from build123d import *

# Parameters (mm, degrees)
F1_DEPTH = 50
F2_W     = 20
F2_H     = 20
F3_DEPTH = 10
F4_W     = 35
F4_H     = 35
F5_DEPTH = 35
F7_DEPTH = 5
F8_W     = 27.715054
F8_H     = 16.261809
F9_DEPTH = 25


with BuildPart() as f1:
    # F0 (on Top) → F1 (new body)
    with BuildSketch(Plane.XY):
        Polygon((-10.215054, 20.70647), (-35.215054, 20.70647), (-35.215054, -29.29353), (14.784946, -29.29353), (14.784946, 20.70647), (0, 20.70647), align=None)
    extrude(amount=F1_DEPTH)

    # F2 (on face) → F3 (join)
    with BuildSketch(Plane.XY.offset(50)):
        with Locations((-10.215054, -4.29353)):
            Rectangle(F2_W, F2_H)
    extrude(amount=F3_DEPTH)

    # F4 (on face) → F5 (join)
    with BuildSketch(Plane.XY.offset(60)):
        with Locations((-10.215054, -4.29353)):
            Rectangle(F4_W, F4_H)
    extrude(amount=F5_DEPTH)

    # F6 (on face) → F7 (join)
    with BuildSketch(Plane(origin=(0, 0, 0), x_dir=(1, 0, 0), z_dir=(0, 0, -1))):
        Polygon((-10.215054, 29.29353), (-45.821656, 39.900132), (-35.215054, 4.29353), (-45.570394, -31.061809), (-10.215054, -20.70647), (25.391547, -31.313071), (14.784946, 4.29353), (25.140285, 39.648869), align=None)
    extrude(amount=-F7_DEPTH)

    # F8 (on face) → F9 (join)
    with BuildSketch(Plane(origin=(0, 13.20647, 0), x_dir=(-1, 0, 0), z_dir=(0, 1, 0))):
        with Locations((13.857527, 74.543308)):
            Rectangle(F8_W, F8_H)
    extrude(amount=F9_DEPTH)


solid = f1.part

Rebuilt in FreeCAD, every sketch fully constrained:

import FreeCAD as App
import Part
import Sketcher
Q = App.Units.Quantity

doc = App.newDocument("Part")
body = doc.addObject("PartDesign::Body", "Body")

# Sketch on XY plane
sketch1 = body.newObject("Sketcher::SketchObject", "Sketch")
sketch1.AttachmentSupport = (doc.getObject("XY_Plane"), [""])
sketch1.MapMode = "FlatFace"
sketch1.addGeometry([
    Part.LineSegment(App.Vector(-35, 21, 0), App.Vector(-35, -29, 0)),
    Part.LineSegment(App.Vector(-35, -29, 0), App.Vector(15, -29, 0)),
    Part.LineSegment(App.Vector(15, -29, 0), App.Vector(15, 21, 0)),
    Part.LineSegment(App.Vector(15, 21, 0), App.Vector(-35, 21, 0)),
], False)
sketch1.addConstraint([
    Sketcher.Constraint("Coincident", 0, 2, 1, 1),
    Sketcher.Constraint("Coincident", 1, 2, 2, 1),
    Sketcher.Constraint("Coincident", 2, 2, 3, 1),
    Sketcher.Constraint("Coincident", 3, 2, 0, 1),
    Sketcher.Constraint("Vertical", 0),
    Sketcher.Constraint("Horizontal", 1),
    Sketcher.Constraint("Vertical", 2),
    Sketcher.Constraint("Horizontal", 3),
    Sketcher.Constraint("Equal", 3, 0),
    Sketcher.Constraint("DistanceX", 1, 1, 1, 2, Q("50 mm")),
    Sketcher.Constraint("DistanceY", 0, 2, -1, 1, Q("29.29353 mm")),
    Sketcher.Constraint("DistanceX", 0, 2, -1, 1, Q("35.215054 mm")),
])
pad1 = body.newObject("PartDesign::Pad", "Pad")
pad1.Profile = sketch1
pad1.Length = 50

# Sketch on XY plane
sketch2 = body.newObject("Sketcher::SketchObject", "Sketch001")
sketch2.AttachmentSupport = (doc.getObject("XY_Plane"), [""])
sketch2.MapMode = "FlatFace"
sketch2.AttachmentOffset = App.Placement(App.Vector(0, 0, 50), App.Rotation())
sketch2.addGeometry([
    Part.LineSegment(App.Vector(-20, 6, 0), App.Vector(-20, -14, 0)),
    Part.LineSegment(App.Vector(-20, -14, 0), App.Vector(0, -14, 0)),
    Part.LineSegment(App.Vector(0, -14, 0), App.Vector(0, 6, 0)),
    Part.LineSegment(App.Vector(0, 6, 0), App.Vector(-20, 6, 0)),
], False)
sketch2.addConstraint([
    Sketcher.Constraint("Coincident", 0, 2, 1, 1),
    Sketcher.Constraint("Coincident", 1, 2, 2, 1),
    Sketcher.Constraint("Coincident", 2, 2, 3, 1),
    Sketcher.Constraint("Coincident", 3, 2, 0, 1),
    Sketcher.Constraint("Vertical", 0),
    Sketcher.Constraint("Horizontal", 1),
    Sketcher.Constraint("Vertical", 2),
    Sketcher.Constraint("Horizontal", 3),
    Sketcher.Constraint("Equal", 3, 0),
    Sketcher.Constraint("DistanceX", 1, 1, 1, 2, Q("20 mm")),
    Sketcher.Constraint("DistanceY", 0, 2, -1, 1, Q("14.29353 mm")),
    Sketcher.Constraint("DistanceX", 0, 2, -1, 1, Q("20.215054 mm")),
])
pad2 = body.newObject("PartDesign::Pad", "Pad001")
pad2.Profile = sketch2
pad2.Length = 10

# Sketch on XY plane
sketch3 = body.newObject("Sketcher::SketchObject", "Sketch002")
sketch3.AttachmentSupport = (doc.getObject("XY_Plane"), [""])
sketch3.MapMode = "FlatFace"
sketch3.AttachmentOffset = App.Placement(App.Vector(0, 0, 60), App.Rotation())
sketch3.addGeometry([
    Part.LineSegment(App.Vector(-28, 13, 0), App.Vector(-28, -22, 0)),
    Part.LineSegment(App.Vector(-28, -22, 0), App.Vector(7, -22, 0)),
    Part.LineSegment(App.Vector(7, -22, 0), App.Vector(7, 13, 0)),
    Part.LineSegment(App.Vector(7, 13, 0), App.Vector(-28, 13, 0)),
], False)
sketch3.addConstraint([
    Sketcher.Constraint("Coincident", 0, 2, 1, 1),
    Sketcher.Constraint("Coincident", 1, 2, 2, 1),
    Sketcher.Constraint("Coincident", 2, 2, 3, 1),
    Sketcher.Constraint("Coincident", 3, 2, 0, 1),
    Sketcher.Constraint("Vertical", 0),
    Sketcher.Constraint("Horizontal", 1),
    Sketcher.Constraint("Vertical", 2),
    Sketcher.Constraint("Horizontal", 3),
    Sketcher.Constraint("Equal", 3, 0),
    Sketcher.Constraint("DistanceX", 1, 1, 1, 2, Q("35 mm")),
    Sketcher.Constraint("DistanceY", 0, 2, -1, 1, Q("21.79353 mm")),
    Sketcher.Constraint("DistanceX", 0, 2, -1, 1, Q("27.715054 mm")),
])
pad3 = body.newObject("PartDesign::Pad", "Pad002")
pad3.Profile = sketch3
pad3.Length = 35

# Sketch on XY plane
sketch4 = body.newObject("Sketcher::SketchObject", "Sketch003")
sketch4.AttachmentSupport = (doc.getObject("XY_Plane"), [""])
sketch4.MapMode = "FlatFace"
sketch4.addGeometry([
    Part.LineSegment(App.Vector(-10, -29, 0), App.Vector(-46, -40, 0)),  # 0
    Part.LineSegment(App.Vector(-46, -40, 0), App.Vector(-35, -4, 0)),  # 1
    Part.LineSegment(App.Vector(-35, -4, 0), App.Vector(-46, 31, 0)),  # 2
    Part.LineSegment(App.Vector(-46, 31, 0), App.Vector(-10, 21, 0)),  # 3
    Part.LineSegment(App.Vector(-10, 21, 0), App.Vector(25, 31, 0)),  # 4
    Part.LineSegment(App.Vector(25, 31, 0), App.Vector(15, -4, 0)),  # 5
    Part.LineSegment(App.Vector(15, -4, 0), App.Vector(25, -40, 0)),  # 6
    Part.LineSegment(App.Vector(25, -40, 0), App.Vector(-10, -29, 0)),  # 7
], False)
sketch4.addConstraint([
    Sketcher.Constraint("Coincident", 0, 2, 1, 1),
    Sketcher.Constraint("Coincident", 1, 2, 2, 1),
    Sketcher.Constraint("Coincident", 2, 2, 3, 1),
    Sketcher.Constraint("Coincident", 3, 2, 4, 1),
    Sketcher.Constraint("Coincident", 4, 2, 5, 1),
    Sketcher.Constraint("Coincident", 5, 2, 6, 1),
    Sketcher.Constraint("Coincident", 6, 2, 7, 1),
    Sketcher.Constraint("Coincident", 7, 2, 0, 1),
    Sketcher.Constraint("Parallel", 0, 4),
    Sketcher.Constraint("Parallel", 1, 5),
    Sketcher.Constraint("Parallel", 2, 6),
    Sketcher.Constraint("Parallel", 3, 7),
    Sketcher.Constraint("Horizontal", 1, 2, 5, 2),
    Sketcher.Constraint("Vertical", 3, 2, 7, 2),
    Sketcher.Constraint("Equal", 0, 1),
    Sketcher.Constraint("Equal", 2, 3),
    Sketcher.Constraint("Equal", 1, 4),
    Sketcher.Constraint("Equal", 4, 5),
    Sketcher.Constraint("DistanceX", 1, 2, 3, 2, Q("25 mm")),
    Sketcher.Constraint("DistanceY", 1, 2, 3, 2, Q("25 mm")),
    Sketcher.Constraint("DistanceX", 0, 2, 1, 2, Q("10.606602 mm")),
    Sketcher.Constraint("DistanceY", 1, 2, -1, 1, Q("4.29353 mm")),
    Sketcher.Constraint("DistanceY", -1, 1, 2, 2, Q("31.061809 mm")),
    Sketcher.Constraint("DistanceX", 0, 2, -1, 1, Q("45.821656 mm")),
])
pad4 = body.newObject("PartDesign::Pad", "Pad003")
pad4.Profile = sketch4
pad4.Length = 5

# Sketch on XZ plane
sketch5 = body.newObject("Sketcher::SketchObject", "Sketch004")
sketch5.AttachmentSupport = (doc.getObject("XZ_Plane"), [""])
sketch5.MapMode = "FlatFace"
sketch5.AttachmentOffset = App.Placement(App.Vector(0, 0, -13.20647), App.Rotation())
sketch5.addGeometry([
    Part.LineSegment(App.Vector(0, 83, 0), App.Vector(0, 66, 0)),
    Part.LineSegment(App.Vector(0, 66, 0), App.Vector(-28, 66, 0)),
    Part.LineSegment(App.Vector(-28, 66, 0), App.Vector(-28, 83, 0)),
    Part.LineSegment(App.Vector(-28, 83, 0), App.Vector(0, 83, 0)),
], False)
sketch5.addConstraint([
    Sketcher.Constraint("Coincident", 0, 2, 1, 1),
    Sketcher.Constraint("Coincident", 1, 2, 2, 1),
    Sketcher.Constraint("Coincident", 2, 2, 3, 1),
    Sketcher.Constraint("Coincident", 3, 2, 0, 1),
    Sketcher.Constraint("Vertical", 0),
    Sketcher.Constraint("Horizontal", 1),
    Sketcher.Constraint("Vertical", 2),
    Sketcher.Constraint("Horizontal", 3),
    Sketcher.Constraint("PointOnObject", 0, 2, -2),
    Sketcher.Constraint("DistanceY", 0, 2, 0, 1, Q("16.261809 mm")),
    Sketcher.Constraint("DistanceX", 1, 2, 1, 1, Q("27.715054 mm")),
    Sketcher.Constraint("DistanceY", -1, 1, 0, 2, Q("66.412403 mm")),
])
pad5 = body.newObject("PartDesign::Pad", "Pad004")
pad5.Profile = sketch5
pad5.Length = 25
pad5.Reversed = True

doc.recompute()
